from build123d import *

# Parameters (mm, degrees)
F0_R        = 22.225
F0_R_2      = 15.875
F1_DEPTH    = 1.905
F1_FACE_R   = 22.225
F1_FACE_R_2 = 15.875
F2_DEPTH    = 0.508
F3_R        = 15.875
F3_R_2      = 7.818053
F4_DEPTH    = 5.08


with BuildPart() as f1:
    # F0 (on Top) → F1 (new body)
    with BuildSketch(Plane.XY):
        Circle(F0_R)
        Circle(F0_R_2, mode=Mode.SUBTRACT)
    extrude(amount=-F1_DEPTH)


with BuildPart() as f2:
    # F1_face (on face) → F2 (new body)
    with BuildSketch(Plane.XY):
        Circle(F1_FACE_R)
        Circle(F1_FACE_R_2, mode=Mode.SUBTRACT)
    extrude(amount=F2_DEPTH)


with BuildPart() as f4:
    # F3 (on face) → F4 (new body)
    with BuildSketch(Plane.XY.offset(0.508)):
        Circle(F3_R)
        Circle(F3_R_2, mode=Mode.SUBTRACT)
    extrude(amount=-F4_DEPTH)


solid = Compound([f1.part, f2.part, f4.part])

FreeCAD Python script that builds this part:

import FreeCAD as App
import Part
import Sketcher

V = App.Vector
Q = App.Units.Quantity

doc = App.newDocument("Part")
body = doc.addObject("PartDesign::Body", "Body")

sketch1 = body.newObject("Sketcher::SketchObject", "Sketch")
sketch1.AttachmentSupport = (doc.getObject("XY_Plane"), [""])
sketch1.MapMode = "FlatFace"
sketch1.addGeometry(Part.Circle(V(0, 0, 0), V(0, 0, 1), 22), False)
sketch1.addGeometry(Part.Circle(V(0, 0, 0), V(0, 0, 1), 16), False)
sketch1.addConstraint(Sketcher.Constraint("Coincident", 0, 3, -1, 1))
sketch1.addConstraint(Sketcher.Constraint("Coincident", 1, 3, -1, 1))
sketch1.addConstraint(Sketcher.Constraint("Diameter", 0, Q("1.75 in")))
sketch1.addConstraint(Sketcher.Constraint("Diameter", 1, Q("1.25 in")))
pad1 = body.newObject("PartDesign::Pad", "Pad")
pad1.Profile = sketch1
pad1.Length = Q("0.075 in")
pad1.Reversed = True
body2 = doc.addObject("PartDesign::Body", "Body001")

sketch2 = body2.newObject("Sketcher::SketchObject", "Sketch001")
sketch2.AttachmentSupport = (doc.getObject("XY_Plane001"), [""])
sketch2.MapMode = "FlatFace"
sketch2.addGeometry(Part.Circle(V(0, 0, 0), V(0, 0, 1), 22), False)
sketch2.addGeometry(Part.Circle(V(0, 0, 0), V(0, 0, 1), 16), False)
sketch2.addConstraint(Sketcher.Constraint("Coincident", 0, 3, -1, 1))
sketch2.addConstraint(Sketcher.Constraint("Coincident", 1, 3, -1, 1))
sketch2.addConstraint(Sketcher.Constraint("Diameter", 0, Q("1.75 in")))
sketch2.addConstraint(Sketcher.Constraint("Diameter", 1, Q("1.25 in")))
pad2 = body2.newObject("PartDesign::Pad", "Pad001")
pad2.Profile = sketch2
pad2.Length = Q("0.02 in")
body3 = doc.addObject("PartDesign::Body", "Body002")

sketch3 = body3.newObject("Sketcher::SketchObject", "Sketch002")
sketch3.AttachmentSupport = (doc.getObject("XY_Plane002"), [""])
sketch3.MapMode = "FlatFace"
sketch3.AttachmentOffset = App.Placement(V(0, 0, 0.02 * 25.4), App.Rotation())
sketch3.addGeometry(Part.Circle(V(0, 0, 0), V(0, 0, 1), 16), False)
sketch3.addGeometry(Part.Circle(V(0, 0, 0), V(0, 0, 1), 8), False)
sketch3.addConstraint(Sketcher.Constraint("Coincident", 0, 3, -1, 1))
sketch3.addConstraint(Sketcher.Constraint("Coincident", 1, 3, -1, 1))
sketch3.addConstraint(Sketcher.Constraint("Diameter", 0, Q("1.25 in")))
sketch3.addConstraint(Sketcher.Constraint("Diameter", 1, Q("15.636106 mm")))
pad3 = body3.newObject("PartDesign::Pad", "Pad002")
pad3.Profile = sketch3
pad3.Length = Q("0.2 in")
pad3.Reversed = True

doc.recompute()
